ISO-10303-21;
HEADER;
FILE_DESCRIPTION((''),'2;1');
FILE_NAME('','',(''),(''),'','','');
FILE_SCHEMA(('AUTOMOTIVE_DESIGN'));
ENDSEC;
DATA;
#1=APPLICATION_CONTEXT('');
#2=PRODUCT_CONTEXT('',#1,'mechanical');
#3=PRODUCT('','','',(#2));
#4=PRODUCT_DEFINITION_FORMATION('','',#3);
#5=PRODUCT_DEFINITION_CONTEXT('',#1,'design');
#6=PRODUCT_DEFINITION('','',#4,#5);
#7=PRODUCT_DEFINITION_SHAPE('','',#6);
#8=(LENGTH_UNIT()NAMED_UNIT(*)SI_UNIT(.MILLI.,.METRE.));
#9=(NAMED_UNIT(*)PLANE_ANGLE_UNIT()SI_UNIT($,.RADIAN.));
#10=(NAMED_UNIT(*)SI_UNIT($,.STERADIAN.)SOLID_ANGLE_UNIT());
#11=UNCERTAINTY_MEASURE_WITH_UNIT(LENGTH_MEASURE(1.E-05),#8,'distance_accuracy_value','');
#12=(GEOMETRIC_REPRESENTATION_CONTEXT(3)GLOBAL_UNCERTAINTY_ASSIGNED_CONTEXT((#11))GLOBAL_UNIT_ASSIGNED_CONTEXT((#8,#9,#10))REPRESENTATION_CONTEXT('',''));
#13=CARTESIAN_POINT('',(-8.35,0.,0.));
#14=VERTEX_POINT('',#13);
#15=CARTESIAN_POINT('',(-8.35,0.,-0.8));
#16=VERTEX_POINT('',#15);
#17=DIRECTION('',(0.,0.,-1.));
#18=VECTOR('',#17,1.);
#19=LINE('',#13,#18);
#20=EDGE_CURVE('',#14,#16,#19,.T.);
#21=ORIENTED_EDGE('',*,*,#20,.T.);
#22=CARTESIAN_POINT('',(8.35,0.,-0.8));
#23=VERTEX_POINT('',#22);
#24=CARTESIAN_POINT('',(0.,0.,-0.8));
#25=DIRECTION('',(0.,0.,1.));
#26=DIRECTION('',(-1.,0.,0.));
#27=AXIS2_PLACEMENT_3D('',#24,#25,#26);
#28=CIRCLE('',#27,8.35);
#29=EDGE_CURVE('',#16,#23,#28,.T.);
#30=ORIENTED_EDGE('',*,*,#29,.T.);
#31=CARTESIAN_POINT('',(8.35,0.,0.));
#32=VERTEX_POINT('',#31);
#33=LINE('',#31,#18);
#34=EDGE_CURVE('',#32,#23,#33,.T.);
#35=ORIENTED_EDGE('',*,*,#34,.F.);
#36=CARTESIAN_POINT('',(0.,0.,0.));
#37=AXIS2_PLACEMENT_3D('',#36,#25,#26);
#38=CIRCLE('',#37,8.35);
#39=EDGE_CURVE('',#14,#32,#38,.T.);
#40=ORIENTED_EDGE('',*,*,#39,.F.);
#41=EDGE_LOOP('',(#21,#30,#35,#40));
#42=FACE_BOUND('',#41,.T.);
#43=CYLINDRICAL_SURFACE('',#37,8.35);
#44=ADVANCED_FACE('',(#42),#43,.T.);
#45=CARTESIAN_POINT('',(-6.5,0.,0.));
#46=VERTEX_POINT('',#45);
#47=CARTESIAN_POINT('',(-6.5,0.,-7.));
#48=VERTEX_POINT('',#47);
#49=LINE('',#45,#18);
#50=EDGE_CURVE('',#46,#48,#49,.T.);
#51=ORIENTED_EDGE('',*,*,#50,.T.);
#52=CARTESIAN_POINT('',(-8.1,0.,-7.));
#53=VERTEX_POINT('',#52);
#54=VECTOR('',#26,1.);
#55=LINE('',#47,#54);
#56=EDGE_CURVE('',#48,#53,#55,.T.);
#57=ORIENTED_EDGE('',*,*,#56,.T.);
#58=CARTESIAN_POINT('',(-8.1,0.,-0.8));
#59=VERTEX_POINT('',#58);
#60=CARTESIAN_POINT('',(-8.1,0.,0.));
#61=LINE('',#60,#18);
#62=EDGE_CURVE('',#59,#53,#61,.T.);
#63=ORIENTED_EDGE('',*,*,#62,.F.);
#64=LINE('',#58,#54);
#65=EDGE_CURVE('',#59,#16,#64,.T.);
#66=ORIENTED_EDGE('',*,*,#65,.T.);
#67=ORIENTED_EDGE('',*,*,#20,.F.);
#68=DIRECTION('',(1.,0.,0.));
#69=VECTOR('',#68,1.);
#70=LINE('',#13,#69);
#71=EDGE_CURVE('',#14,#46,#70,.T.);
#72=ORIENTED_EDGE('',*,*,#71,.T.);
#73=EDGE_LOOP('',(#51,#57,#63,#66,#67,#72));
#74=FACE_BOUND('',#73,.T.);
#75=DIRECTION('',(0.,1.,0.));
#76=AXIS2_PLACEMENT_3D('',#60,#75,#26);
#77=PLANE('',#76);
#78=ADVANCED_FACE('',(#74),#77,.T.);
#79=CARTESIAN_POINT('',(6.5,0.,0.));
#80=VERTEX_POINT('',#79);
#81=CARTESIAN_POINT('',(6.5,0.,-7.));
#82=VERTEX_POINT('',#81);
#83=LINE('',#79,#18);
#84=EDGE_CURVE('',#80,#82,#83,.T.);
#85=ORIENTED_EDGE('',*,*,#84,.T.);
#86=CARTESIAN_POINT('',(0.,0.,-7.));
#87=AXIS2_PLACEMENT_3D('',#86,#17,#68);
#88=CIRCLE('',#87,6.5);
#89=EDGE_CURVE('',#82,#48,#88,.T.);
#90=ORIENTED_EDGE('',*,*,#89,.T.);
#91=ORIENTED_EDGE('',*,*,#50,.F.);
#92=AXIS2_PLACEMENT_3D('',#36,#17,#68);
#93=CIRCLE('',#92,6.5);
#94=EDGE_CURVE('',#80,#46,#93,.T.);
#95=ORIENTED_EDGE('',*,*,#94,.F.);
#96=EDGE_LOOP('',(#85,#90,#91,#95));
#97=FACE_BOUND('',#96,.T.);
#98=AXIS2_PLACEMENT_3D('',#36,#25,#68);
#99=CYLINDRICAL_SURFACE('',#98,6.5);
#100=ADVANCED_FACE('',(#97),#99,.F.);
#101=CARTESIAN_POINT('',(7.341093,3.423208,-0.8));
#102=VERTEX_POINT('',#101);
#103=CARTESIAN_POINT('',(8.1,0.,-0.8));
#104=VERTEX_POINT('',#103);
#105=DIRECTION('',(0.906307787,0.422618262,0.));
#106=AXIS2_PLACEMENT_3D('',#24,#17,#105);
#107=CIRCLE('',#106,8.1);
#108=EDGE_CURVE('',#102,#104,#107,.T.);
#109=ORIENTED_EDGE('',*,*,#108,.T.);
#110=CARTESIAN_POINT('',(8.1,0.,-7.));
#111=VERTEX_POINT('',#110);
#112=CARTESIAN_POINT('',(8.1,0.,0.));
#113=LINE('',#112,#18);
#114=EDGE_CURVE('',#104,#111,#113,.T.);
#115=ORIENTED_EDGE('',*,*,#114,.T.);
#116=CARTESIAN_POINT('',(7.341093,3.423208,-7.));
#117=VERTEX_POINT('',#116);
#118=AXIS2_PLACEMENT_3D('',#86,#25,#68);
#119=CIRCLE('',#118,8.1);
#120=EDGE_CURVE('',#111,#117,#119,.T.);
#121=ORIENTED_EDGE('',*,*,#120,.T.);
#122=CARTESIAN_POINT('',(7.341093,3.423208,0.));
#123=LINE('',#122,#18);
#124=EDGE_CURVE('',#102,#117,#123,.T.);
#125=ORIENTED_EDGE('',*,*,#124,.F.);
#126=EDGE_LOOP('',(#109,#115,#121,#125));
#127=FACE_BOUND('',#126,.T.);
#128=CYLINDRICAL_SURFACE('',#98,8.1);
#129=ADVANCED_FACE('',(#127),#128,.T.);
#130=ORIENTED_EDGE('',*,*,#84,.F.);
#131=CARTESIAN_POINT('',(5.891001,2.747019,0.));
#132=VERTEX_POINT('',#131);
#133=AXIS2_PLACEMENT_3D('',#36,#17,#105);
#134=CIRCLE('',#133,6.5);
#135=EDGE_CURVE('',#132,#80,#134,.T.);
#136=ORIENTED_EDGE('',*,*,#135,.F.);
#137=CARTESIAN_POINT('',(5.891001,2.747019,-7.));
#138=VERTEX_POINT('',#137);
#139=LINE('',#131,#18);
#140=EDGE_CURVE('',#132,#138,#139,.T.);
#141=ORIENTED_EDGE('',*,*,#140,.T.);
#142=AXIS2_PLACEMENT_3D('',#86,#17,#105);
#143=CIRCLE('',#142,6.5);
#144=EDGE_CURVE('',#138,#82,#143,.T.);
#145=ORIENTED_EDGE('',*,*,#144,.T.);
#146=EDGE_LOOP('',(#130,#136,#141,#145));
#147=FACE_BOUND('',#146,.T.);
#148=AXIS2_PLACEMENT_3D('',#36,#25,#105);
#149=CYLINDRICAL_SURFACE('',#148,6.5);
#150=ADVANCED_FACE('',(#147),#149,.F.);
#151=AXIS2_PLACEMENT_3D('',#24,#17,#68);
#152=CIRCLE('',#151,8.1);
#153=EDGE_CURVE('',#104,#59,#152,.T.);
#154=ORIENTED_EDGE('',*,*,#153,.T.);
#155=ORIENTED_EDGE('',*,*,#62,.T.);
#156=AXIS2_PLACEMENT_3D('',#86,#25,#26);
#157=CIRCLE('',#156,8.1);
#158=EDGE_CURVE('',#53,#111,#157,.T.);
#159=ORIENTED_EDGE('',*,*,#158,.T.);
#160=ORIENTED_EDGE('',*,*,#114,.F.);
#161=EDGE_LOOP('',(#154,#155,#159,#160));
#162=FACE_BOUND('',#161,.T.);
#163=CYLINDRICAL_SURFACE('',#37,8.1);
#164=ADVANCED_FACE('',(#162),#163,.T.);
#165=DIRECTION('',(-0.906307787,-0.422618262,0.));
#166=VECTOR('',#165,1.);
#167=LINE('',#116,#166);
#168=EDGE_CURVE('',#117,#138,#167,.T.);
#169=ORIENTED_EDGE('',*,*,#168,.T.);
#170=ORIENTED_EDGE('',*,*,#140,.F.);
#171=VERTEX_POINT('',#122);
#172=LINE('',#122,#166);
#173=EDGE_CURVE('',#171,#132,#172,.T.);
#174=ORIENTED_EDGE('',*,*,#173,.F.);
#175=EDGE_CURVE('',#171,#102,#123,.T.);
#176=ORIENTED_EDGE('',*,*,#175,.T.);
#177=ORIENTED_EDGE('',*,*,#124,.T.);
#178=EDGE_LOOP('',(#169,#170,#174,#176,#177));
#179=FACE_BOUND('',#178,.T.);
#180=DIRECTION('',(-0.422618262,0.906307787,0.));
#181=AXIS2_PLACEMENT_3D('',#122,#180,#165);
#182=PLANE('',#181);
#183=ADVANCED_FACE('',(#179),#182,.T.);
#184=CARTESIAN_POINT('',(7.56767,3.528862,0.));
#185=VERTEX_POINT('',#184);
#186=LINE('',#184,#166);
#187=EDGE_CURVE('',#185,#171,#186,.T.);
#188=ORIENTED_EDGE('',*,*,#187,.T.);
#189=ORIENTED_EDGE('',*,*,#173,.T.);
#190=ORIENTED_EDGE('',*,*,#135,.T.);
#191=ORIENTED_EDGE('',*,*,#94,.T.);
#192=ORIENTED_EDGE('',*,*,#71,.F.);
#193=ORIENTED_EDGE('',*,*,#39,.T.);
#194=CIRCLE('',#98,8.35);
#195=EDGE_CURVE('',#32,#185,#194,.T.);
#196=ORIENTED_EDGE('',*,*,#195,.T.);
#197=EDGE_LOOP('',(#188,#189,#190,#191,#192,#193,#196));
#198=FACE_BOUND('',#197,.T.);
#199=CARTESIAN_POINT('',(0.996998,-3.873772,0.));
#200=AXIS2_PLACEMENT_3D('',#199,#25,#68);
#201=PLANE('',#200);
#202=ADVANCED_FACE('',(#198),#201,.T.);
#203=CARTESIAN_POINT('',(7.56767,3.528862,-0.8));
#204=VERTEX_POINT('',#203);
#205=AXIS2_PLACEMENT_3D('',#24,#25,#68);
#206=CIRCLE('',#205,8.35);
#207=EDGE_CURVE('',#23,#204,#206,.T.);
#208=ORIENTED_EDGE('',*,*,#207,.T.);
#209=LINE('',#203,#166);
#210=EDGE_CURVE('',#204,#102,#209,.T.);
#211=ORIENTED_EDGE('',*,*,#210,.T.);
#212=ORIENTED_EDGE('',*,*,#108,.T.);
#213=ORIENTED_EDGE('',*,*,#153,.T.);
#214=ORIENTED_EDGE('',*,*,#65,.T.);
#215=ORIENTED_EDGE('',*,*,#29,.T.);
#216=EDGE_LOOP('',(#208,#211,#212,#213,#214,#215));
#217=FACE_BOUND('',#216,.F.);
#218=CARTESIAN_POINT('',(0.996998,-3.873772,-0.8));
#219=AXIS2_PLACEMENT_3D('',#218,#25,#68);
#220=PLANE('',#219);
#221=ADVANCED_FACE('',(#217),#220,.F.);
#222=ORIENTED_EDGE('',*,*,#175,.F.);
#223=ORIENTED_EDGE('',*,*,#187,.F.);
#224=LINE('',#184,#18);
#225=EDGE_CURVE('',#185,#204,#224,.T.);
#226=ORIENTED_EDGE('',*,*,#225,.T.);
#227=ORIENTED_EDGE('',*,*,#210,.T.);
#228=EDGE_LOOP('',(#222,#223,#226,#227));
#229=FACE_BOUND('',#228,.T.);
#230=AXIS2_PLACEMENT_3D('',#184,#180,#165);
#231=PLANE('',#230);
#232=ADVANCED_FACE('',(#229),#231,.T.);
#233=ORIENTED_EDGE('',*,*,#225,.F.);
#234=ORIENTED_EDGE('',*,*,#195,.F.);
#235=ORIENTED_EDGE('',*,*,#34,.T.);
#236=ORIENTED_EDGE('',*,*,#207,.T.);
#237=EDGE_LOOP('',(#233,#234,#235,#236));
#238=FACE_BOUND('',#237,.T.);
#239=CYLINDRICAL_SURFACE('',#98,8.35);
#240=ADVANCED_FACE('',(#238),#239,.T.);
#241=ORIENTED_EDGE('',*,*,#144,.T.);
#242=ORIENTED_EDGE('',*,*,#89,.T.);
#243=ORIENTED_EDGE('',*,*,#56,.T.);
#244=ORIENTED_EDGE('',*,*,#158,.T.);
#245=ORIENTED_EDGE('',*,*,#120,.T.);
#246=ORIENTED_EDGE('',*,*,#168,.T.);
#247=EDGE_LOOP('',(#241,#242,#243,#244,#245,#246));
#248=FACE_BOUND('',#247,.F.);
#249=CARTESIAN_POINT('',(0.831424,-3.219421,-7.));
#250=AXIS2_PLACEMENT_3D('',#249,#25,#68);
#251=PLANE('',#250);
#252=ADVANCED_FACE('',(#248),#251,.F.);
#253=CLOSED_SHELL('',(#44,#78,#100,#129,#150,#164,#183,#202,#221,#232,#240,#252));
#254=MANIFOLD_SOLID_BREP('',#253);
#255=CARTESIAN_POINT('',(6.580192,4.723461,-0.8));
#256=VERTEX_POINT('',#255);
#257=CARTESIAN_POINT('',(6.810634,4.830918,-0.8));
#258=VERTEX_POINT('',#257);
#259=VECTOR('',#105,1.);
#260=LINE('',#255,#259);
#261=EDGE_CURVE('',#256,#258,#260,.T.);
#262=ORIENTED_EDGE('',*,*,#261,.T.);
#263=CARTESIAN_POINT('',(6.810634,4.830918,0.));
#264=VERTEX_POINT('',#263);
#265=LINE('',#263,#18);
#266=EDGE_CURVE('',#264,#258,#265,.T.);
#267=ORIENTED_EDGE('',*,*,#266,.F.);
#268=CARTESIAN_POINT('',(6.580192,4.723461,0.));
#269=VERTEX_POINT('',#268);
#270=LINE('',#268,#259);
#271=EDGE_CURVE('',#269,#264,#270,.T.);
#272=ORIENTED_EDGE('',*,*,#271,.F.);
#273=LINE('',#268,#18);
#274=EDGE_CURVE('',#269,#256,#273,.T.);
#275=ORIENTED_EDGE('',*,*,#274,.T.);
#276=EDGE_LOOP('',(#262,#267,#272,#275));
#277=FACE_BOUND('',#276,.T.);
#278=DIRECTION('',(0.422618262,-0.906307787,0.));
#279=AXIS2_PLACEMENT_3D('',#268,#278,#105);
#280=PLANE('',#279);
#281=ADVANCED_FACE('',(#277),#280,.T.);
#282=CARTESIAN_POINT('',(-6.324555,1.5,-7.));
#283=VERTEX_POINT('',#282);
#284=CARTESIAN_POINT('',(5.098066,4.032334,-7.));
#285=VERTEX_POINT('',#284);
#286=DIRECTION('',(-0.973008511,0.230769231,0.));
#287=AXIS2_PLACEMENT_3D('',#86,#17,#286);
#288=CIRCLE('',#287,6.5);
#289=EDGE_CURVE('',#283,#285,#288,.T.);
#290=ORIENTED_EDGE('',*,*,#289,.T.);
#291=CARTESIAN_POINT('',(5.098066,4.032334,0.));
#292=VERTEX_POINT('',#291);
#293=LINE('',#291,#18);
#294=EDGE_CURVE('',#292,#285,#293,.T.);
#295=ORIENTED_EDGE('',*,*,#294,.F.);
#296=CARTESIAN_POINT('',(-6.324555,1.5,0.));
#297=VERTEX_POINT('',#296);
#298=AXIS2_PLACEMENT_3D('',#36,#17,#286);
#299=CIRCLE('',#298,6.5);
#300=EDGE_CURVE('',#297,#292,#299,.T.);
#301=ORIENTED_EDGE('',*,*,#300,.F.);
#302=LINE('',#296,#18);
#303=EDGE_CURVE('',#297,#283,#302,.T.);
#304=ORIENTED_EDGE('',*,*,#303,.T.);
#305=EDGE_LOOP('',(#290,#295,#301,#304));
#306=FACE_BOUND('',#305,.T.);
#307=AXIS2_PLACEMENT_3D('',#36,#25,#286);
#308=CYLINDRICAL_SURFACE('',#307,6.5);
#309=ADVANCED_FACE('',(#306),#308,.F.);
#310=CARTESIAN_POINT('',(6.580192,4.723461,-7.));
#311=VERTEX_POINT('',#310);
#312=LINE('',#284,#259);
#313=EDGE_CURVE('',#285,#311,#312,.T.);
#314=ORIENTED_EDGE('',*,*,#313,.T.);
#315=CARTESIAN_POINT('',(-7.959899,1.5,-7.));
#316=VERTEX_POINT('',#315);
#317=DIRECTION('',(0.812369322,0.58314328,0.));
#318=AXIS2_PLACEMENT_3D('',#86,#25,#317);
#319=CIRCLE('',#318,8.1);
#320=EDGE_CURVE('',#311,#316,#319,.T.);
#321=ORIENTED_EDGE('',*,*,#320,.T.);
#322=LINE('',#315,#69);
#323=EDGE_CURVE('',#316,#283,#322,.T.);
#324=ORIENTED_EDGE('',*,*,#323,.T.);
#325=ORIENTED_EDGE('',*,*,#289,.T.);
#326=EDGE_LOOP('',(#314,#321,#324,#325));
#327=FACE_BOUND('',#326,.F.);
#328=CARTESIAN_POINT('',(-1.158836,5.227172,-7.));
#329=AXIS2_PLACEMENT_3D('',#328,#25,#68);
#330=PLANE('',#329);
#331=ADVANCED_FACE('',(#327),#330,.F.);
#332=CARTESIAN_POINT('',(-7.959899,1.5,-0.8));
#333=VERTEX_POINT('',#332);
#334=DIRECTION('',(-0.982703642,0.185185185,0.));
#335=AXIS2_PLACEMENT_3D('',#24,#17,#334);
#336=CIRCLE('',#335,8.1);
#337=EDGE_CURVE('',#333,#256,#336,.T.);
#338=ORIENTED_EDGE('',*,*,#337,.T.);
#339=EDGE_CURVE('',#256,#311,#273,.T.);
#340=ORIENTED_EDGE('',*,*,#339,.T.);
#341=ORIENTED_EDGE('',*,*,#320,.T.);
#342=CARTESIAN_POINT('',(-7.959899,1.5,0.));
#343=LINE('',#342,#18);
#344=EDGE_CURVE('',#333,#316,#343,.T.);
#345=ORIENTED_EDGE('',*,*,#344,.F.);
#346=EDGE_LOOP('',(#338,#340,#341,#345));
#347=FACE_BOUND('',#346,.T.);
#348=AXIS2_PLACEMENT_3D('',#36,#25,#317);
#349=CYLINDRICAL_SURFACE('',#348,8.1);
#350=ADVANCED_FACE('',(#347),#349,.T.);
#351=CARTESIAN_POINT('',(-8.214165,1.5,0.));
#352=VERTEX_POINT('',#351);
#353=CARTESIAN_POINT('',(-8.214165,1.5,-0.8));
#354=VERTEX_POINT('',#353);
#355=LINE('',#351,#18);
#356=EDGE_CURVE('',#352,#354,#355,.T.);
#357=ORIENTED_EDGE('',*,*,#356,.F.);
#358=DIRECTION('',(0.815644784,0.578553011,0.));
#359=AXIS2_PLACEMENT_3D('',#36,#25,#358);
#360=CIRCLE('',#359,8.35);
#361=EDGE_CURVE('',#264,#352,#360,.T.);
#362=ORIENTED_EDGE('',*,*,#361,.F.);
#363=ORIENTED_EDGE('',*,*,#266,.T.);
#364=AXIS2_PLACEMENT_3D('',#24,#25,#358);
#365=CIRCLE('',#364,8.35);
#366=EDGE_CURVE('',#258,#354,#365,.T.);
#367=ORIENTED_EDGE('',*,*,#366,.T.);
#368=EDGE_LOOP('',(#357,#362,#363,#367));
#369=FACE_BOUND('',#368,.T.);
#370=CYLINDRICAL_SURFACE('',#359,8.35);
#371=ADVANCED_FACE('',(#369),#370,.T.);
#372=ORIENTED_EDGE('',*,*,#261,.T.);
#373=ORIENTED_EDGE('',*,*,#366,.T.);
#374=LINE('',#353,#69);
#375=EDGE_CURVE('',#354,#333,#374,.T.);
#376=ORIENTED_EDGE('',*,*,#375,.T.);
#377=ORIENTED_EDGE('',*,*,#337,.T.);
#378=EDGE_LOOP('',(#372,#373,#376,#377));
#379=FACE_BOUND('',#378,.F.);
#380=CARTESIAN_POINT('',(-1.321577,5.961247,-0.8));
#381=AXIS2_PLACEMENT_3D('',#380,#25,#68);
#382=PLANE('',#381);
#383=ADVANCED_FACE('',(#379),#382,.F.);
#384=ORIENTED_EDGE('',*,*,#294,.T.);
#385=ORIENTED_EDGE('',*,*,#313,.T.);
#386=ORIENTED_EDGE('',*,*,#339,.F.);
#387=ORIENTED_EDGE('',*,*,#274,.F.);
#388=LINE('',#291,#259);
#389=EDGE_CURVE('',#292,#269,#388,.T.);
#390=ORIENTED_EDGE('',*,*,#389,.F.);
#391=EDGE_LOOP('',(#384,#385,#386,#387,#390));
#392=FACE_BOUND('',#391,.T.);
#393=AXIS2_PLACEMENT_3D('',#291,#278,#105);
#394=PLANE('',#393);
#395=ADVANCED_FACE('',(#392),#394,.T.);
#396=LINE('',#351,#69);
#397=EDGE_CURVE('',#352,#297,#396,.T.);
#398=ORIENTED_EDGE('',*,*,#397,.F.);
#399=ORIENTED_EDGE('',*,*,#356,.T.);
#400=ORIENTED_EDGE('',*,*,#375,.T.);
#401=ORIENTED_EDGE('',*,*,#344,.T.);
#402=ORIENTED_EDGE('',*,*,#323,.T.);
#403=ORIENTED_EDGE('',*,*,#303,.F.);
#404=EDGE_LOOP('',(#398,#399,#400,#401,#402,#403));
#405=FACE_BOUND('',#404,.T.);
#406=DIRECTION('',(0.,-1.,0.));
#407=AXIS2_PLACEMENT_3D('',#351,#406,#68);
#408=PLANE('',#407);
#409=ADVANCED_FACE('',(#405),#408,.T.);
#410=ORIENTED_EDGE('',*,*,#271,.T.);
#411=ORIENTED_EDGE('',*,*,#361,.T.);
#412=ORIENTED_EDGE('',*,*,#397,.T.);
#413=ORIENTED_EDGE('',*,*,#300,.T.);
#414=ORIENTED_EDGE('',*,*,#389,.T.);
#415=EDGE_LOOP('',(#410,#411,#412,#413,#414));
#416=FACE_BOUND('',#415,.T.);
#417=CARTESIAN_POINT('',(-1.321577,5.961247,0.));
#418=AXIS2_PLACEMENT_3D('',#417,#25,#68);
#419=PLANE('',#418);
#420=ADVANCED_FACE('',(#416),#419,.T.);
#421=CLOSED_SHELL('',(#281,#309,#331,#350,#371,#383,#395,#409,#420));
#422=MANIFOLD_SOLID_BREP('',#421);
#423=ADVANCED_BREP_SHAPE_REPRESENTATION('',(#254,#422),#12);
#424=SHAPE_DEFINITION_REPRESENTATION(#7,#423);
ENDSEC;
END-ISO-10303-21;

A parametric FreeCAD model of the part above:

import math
import FreeCAD as App
import Part
import Sketcher

V = App.Vector
Q = App.Units.Quantity

doc = App.newDocument("Part")
body = doc.addObject("PartDesign::Body", "Body")

# Sketch on XY plane
sketch1 = body.newObject("Sketcher::SketchObject", "Sketch")
sketch1.AttachmentSupport = (doc.getObject("XY_Plane"), [""])
sketch1.MapMode = "FlatFace"
sketch1.addGeometry([
    Part.ArcOfCircle(Part.Circle(V(0, 0, 0), V(0, 0, 1), 8.1), math.radians(0), math.radians(25)),  # 0
    Part.LineSegment(V(7.341093, 3.423208, 0), V(5.891001, 2.747019, 0)),  # 1
    Part.ArcOfCircle(Part.Circle(V(0, 0, 0), V(0, 0, 1), 6.5), math.radians(0), math.radians(25)),  # 2
    Part.ArcOfCircle(Part.Circle(V(0, 0, 0), V(0, 0, 1), 6.5), math.radians(180), math.radians(360)),  # 3
    Part.LineSegment(V(-6.5, 0, 0), V(-8.1, 0, 0)),  # 4
    Part.ArcOfCircle(Part.Circle(V(0, 0, 0), V(0, 0, 1), 8.1), math.radians(180), math.radians(360)),  # 5
], False)
sketch1.addConstraint([
    Sketcher.Constraint("Coincident", 0, 2, 1, 1),
    Sketcher.Constraint("Coincident", 1, 2, 2, 2),
    Sketcher.Constraint("Tangent", 2, 1, 3, 2),
    Sketcher.Constraint("Coincident", 3, 1, 4, 1),
    Sketcher.Constraint("Coincident", 4, 2, 5, 1),
    Sketcher.Constraint("Tangent", 5, 2, 0, 1),
    Sketcher.Constraint("Horizontal", 4),
    Sketcher.Constraint("Coincident", 0, 3, -1, 1),
    Sketcher.Constraint("Coincident", 2, 3, -1, 1),
    Sketcher.Constraint("Equal", 2, 3),
    Sketcher.Constraint("Equal", 0, 5),
    Sketcher.Constraint("PointOnObject", 2, 1, -1),
    Sketcher.Constraint("PointOnObject", 3, 1, -1),
    Sketcher.Constraint("PointOnObject", 5, 2, -1),
    Sketcher.Constraint("Radius", 0, 8.1),
    Sketcher.Constraint("Radius", 2, 6.5),
    Sketcher.Constraint("Angle", 1, Q("-155 deg")),
    Sketcher.Constraint("DistanceX", -1, 1, 1, 2, 5.891001),
])
pad1 = body.newObject("PartDesign::Pad", "Pad")
pad1.Profile = sketch1
pad1.Length = 7
pad1.Reversed = True

# Sketch on XY plane
sketch2 = body.newObject("Sketcher::SketchObject", "Sketch001")
sketch2.AttachmentSupport = (doc.getObject("XY_Plane"), [""])
sketch2.MapMode = "FlatFace"
sketch2.addGeometry([
    Part.ArcOfCircle(Part.Circle(V(0, 0, 0), V(0, 0, 1), 8.35), math.radians(180), math.radians(360)),  # 0
    Part.ArcOfCircle(Part.Circle(V(0, 0, 0), V(0, 0, 1), 8.35), math.radians(0), math.radians(25)),  # 1
    Part.LineSegment(V(7.56767, 3.528862, 0), V(7.341093, 3.423208, 0)),  # 2
    Part.ArcOfCircle(Part.Circle(V(0, 0, 0), V(0, 0, 1), 8.1), math.radians(0), math.radians(25)),  # 3
    Part.ArcOfCircle(Part.Circle(V(0, 0, 0), V(0, 0, 1), 8.1), math.radians(180), math.radians(360)),  # 4
    Part.LineSegment(V(-8.1, 0, 0), V(-8.35, 0, 0)),  # 5
], False)
sketch2.addConstraint([
    Sketcher.Constraint("Tangent", 0, 2, 1, 1),
    Sketcher.Constraint("Coincident", 1, 2, 2, 1),
    Sketcher.Constraint("Coincident", 2, 2, 3, 2),
    Sketcher.Constraint("Tangent", 3, 1, 4, 2),
    Sketcher.Constraint("Coincident", 4, 1, 5, 1),
    Sketcher.Constraint("Coincident", 5, 2, 0, 1),
    Sketcher.Constraint("Horizontal", 5),
    Sketcher.Constraint("Coincident", 0, 3, -1, 1),
    Sketcher.Constraint("Coincident", 3, 3, -1, 1),
    Sketcher.Constraint("Equal", 0, 1),
    Sketcher.Constraint("Equal", 3, 4),
    Sketcher.Constraint("PointOnObject", 0, 2, -1),
    Sketcher.Constraint("PointOnObject", 3, 1, -1),
    Sketcher.Constraint("PointOnObject", 4, 1, -1),
    Sketcher.Constraint("Radius", 3, 8.1),
    Sketcher.Constraint("Angle", 2, Q("-155 deg")),
    Sketcher.Constraint("Radius", 0, 8.35),
    Sketcher.Constraint("DistanceX", -1, 1, 1, 2, 7.56767),
])
pad2 = body.newObject("PartDesign::Pad", "Pad001")
pad2.Profile = sketch2
pad2.Length = 0.8
pad2.Reversed = True
body2 = doc.addObject("PartDesign::Body", "Body001")

# Sketch on XY plane
sketch3 = body2.newObject("Sketcher::SketchObject", "Sketch002")
sketch3.AttachmentSupport = (doc.getObject("XY_Plane001"), [""])
sketch3.MapMode = "FlatFace"
sketch3.addGeometry([
    Part.LineSegment(V(5.098066, 4.032334, 0), V(6.580192, 4.723461, 0)),
    Part.ArcOfCircle(Part.Circle(V(0, 0, 0), V(0, 0, 1), 8.1), math.radians(35.671929), math.radians(169.328071)),
    Part.LineSegment(V(-7.959899, 1.5, 0), V(-6.324555, 1.5, 0)),
    Part.ArcOfCircle(Part.Circle(V(0, 0, 0), V(0, 0, 1), 6.5), math.radians(38.342364), math.radians(166.657636)),
], False)
sketch3.addConstraint([
    Sketcher.Constraint("Coincident", 0, 2, 1, 1),
    Sketcher.Constraint("Coincident", 1, 2, 2, 1),
    Sketcher.Constraint("Coincident", 2, 2, 3, 2),
    Sketcher.Constraint("Coincident", 3, 1, 0, 1),
    Sketcher.Constraint("Horizontal", 2),
    Sketcher.Constraint("Coincident", 1, 3, -1, 1),
    Sketcher.Constraint("Coincident", 3, 3, -1, 1),
    Sketcher.Constraint("Radius", 1, 8.1),
    Sketcher.Constraint("Radius", 3, 6.5),
    Sketcher.Constraint("Angle", 0, Q("25 deg")),
    Sketcher.Constraint("DistanceY", -1, 1, 1, 2, 1.5),
    Sketcher.Constraint("DistanceX", -1, 1, 0, 2, 6.580192),
])
pad3 = body2.newObject("PartDesign::Pad", "Pad002")
pad3.Profile = sketch3
pad3.Length = 7
pad3.Reversed = True

# Sketch on XY plane
sketch4 = body2.newObject("Sketcher::SketchObject", "Sketch003")
sketch4.AttachmentSupport = (doc.getObject("XY_Plane001"), [""])
sketch4.MapMode = "FlatFace"
sketch4.addGeometry([
    Part.LineSegment(V(6.580192, 4.723461, 0), V(6.810634, 4.830918, 0)),
    Part.ArcOfCircle(Part.Circle(V(0, 0, 0), V(0, 0, 1), 8.35), math.radians(35.348833), math.radians(169.651167)),
    Part.LineSegment(V(-8.214165, 1.5, 0), V(-7.959899, 1.5, 0)),
    Part.ArcOfCircle(Part.Circle(V(0, 0, 0), V(0, 0, 1), 8.1), math.radians(35.671929), math.radians(169.328071)),
], False)
sketch4.addConstraint([
    Sketcher.Constraint("Coincident", 0, 2, 1, 1),
    Sketcher.Constraint("Coincident", 1, 2, 2, 1),
    Sketcher.Constraint("Coincident", 2, 2, 3, 2),
    Sketcher.Constraint("Coincident", 3, 1, 0, 1),
    Sketcher.Constraint("Horizontal", 2),
    Sketcher.Constraint("Coincident", 1, 3, -1, 1),
    Sketcher.Constraint("Coincident", 3, 3, -1, 1),
    Sketcher.Constraint("Radius", 3, 8.1),
    Sketcher.Constraint("Angle", 0, Q("25 deg")),
    Sketcher.Constraint("Radius", 1, 8.35),
    Sketcher.Constraint("DistanceY", -1, 1, 1, 2, 1.5),
    Sketcher.Constraint("DistanceX", 1, 2, 0, 2, 15.024799),
])
pad4 = body2.newObject("PartDesign::Pad", "Pad003")
pad4.Profile = sketch4
pad4.Length = 0.8
pad4.Reversed = True

doc.recompute()
